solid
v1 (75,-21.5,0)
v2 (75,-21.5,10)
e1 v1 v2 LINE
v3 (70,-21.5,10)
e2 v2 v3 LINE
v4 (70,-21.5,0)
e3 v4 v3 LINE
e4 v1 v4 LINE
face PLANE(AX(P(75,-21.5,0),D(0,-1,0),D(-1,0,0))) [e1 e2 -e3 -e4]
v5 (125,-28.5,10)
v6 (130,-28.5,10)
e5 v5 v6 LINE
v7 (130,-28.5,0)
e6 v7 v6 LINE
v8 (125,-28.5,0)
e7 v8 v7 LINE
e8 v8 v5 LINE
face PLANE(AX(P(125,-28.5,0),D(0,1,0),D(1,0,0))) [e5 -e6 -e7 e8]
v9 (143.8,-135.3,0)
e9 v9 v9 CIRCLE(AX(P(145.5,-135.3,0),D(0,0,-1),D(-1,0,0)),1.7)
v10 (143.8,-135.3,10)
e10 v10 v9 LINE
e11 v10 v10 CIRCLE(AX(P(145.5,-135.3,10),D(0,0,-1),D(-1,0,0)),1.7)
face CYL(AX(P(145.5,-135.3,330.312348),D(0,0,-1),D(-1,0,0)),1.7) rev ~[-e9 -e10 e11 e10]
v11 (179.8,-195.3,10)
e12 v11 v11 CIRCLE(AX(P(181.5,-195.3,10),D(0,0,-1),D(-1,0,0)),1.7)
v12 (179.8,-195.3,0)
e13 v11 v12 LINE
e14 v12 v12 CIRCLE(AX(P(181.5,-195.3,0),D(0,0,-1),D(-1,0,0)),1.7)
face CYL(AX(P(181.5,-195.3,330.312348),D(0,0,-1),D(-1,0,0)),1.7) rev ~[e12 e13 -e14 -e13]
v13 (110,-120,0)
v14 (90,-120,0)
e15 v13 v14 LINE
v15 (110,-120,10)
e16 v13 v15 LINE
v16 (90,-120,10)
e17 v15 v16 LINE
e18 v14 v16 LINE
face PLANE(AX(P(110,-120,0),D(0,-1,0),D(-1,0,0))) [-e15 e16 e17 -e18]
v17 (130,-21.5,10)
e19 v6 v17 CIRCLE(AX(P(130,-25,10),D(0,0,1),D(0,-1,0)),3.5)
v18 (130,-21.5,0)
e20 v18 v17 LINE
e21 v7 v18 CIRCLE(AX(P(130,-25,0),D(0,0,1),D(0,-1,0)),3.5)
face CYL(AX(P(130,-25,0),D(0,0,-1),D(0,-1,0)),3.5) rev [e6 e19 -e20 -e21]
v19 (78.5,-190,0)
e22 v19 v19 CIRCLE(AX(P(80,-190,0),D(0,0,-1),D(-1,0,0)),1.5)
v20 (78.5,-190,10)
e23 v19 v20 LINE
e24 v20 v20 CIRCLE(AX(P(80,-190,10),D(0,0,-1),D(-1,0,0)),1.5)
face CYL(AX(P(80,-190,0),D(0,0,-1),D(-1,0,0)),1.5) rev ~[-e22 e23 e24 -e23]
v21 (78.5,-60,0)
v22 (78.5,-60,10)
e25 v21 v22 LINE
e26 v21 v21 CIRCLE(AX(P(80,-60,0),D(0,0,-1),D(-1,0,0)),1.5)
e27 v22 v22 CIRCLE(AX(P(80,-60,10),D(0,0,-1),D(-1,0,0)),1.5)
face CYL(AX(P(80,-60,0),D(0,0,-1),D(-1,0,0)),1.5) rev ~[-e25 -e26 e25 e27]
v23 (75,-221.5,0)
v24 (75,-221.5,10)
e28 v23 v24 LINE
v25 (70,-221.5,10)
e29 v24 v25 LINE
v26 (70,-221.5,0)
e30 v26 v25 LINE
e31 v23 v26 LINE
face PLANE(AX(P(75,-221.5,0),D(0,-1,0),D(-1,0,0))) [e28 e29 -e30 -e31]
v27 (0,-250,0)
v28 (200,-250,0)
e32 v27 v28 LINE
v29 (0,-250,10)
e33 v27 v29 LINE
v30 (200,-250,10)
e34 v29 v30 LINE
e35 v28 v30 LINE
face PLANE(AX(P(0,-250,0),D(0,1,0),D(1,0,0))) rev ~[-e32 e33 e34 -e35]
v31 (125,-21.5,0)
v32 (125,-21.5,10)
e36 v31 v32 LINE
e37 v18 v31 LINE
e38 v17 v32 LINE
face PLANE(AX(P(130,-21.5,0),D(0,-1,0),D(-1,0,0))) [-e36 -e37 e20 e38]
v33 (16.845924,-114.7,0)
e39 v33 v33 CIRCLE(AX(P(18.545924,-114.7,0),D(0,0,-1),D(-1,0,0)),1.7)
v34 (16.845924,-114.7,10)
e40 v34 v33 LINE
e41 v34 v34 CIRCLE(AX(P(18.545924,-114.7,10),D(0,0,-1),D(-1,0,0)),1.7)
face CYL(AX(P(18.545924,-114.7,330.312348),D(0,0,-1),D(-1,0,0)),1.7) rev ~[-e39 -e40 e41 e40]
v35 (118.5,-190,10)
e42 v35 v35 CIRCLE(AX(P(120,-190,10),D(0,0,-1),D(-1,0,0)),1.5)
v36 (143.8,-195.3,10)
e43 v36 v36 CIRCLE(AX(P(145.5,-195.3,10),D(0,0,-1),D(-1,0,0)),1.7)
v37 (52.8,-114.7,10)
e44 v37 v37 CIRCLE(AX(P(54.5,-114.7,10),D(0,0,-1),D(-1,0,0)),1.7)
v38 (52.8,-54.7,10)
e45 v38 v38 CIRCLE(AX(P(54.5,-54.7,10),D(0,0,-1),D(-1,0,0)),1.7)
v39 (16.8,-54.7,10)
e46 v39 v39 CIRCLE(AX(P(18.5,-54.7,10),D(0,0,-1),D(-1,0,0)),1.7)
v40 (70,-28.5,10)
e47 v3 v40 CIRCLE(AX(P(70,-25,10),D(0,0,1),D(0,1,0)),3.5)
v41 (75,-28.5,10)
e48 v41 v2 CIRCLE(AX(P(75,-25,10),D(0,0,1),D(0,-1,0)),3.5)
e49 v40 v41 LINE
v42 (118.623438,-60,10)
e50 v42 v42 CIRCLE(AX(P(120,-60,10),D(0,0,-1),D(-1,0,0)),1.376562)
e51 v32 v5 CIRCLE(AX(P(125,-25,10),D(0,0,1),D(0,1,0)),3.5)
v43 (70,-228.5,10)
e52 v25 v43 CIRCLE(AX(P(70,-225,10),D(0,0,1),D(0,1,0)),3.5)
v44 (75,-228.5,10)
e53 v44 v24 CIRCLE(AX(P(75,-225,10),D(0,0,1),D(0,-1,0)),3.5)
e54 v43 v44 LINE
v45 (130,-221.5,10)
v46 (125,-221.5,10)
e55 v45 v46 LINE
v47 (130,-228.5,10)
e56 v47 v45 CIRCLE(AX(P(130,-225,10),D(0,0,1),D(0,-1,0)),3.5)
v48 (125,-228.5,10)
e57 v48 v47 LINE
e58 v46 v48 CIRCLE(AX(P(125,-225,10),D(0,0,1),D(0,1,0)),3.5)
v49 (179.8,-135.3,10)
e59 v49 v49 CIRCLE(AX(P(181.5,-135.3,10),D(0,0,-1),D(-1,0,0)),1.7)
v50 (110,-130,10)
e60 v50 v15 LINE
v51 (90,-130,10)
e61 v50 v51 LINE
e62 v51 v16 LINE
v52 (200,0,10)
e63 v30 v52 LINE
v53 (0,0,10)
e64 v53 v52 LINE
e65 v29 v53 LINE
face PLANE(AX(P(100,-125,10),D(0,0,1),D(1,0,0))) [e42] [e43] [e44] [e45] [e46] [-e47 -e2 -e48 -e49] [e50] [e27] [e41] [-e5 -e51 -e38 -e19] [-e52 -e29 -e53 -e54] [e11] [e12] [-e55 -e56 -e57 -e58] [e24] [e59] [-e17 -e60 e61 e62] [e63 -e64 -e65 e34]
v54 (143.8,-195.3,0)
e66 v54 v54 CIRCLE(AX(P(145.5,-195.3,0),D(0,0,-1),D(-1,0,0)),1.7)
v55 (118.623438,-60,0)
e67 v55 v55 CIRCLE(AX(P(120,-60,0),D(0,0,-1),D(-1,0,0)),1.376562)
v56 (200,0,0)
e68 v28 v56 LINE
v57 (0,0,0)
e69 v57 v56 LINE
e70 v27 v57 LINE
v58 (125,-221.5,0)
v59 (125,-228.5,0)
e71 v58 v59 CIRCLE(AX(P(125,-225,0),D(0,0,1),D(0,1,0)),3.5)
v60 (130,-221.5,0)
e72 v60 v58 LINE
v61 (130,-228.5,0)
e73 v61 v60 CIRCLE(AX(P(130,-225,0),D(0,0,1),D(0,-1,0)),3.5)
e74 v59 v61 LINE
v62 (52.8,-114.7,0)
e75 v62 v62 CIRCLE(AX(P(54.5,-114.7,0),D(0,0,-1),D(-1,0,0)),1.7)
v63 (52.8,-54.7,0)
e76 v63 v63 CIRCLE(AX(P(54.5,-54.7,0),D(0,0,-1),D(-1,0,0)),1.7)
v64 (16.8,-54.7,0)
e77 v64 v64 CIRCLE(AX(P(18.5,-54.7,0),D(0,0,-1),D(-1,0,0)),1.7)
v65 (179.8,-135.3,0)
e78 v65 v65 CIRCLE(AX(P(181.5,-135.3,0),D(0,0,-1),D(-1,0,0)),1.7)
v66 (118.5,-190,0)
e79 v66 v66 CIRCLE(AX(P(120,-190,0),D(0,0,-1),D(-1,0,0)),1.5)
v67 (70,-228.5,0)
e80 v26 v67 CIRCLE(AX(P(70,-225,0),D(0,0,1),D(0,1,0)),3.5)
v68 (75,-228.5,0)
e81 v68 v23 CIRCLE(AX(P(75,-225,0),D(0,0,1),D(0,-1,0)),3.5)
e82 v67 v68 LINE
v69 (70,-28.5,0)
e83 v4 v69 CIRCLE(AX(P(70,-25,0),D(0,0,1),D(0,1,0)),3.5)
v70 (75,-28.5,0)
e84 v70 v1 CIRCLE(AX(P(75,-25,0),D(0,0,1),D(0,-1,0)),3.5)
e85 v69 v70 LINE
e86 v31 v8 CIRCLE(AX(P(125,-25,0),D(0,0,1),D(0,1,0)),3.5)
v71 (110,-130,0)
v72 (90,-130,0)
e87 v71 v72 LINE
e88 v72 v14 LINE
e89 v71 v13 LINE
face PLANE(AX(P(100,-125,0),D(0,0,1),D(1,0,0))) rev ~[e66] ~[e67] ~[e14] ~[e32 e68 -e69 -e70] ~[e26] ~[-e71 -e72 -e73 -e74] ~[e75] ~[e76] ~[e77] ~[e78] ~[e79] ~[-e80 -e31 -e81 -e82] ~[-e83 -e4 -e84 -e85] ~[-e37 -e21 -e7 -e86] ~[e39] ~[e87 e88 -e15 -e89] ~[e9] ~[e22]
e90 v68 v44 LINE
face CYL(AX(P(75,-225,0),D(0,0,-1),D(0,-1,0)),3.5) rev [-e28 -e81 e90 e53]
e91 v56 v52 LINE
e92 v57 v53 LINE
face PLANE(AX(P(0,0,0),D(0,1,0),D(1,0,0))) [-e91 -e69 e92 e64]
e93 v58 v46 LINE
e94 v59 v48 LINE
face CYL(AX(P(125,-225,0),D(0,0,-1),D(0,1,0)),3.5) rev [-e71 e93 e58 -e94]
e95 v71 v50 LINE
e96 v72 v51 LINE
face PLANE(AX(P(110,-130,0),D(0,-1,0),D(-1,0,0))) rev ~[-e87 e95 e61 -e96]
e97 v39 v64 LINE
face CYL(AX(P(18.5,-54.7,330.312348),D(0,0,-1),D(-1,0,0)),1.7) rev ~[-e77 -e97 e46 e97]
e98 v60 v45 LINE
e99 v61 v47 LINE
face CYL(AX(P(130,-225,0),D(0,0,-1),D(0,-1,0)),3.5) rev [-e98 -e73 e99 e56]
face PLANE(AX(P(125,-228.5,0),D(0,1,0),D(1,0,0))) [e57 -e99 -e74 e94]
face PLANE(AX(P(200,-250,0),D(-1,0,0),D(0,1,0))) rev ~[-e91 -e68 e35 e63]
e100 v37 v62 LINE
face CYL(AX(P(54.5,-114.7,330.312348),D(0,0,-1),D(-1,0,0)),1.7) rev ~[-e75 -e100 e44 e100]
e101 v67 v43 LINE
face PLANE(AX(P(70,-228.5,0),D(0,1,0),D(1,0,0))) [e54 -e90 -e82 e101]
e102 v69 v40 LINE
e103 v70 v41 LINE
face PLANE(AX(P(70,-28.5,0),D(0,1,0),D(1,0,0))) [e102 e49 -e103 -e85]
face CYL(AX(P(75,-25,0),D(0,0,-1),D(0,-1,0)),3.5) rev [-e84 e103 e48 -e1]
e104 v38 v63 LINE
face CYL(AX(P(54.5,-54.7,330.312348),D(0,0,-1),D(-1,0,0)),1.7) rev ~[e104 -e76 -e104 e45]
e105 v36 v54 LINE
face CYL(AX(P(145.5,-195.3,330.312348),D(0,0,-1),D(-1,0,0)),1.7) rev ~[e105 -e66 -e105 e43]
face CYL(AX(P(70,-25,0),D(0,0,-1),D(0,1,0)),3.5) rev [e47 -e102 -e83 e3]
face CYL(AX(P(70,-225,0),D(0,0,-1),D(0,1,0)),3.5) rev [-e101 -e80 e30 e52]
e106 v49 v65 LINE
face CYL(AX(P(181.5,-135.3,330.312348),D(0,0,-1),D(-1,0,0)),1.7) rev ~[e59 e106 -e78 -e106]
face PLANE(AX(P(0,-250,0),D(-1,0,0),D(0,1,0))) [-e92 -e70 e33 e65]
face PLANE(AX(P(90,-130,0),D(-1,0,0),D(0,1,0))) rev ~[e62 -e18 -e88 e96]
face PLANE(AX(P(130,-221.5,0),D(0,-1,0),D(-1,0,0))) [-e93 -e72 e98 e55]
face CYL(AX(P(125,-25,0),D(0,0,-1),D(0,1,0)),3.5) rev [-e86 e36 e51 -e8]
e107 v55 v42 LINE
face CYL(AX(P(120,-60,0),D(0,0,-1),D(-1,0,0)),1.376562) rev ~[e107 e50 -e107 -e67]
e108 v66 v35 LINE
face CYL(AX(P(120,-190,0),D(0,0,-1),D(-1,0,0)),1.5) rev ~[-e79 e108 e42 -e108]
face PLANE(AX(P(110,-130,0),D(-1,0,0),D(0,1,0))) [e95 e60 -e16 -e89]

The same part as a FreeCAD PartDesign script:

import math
import FreeCAD as App
import Part
import Sketcher

V = App.Vector

doc = App.newDocument("Part")
params = doc.addObject("Spreadsheet::Sheet", "Params")
for row, (alias, value) in enumerate([
    ("sketch1_width", "200 mm"),
    ("sketch1_height", "250 mm"),
    ("pad1_length", "10 mm"),
    ("sketch2_width", "20 mm"),
    ("sketch2_height", "10 mm"),
    ("pocket1_length", "10 mm"),
    ("sketch3_radius", "3.5 mm"),
    ("sketch3_width", "5 mm"),
    ("pocket2_length", "10 mm"),
    ("sketch4_diameter", "3 mm"),
    ("pocket3_length", "10 mm"),
    ("sketch5_diameter", "3.4 mm"),
    ("hole_diameter", "3.4 mm"),
], start=1):
    params.set(f"A{row}", alias)
    params.set(f"B{row}", "=" + value)
    params.setAlias(f"B{row}", alias)

body = doc.addObject("PartDesign::Body", "Body")

sketch1 = body.newObject("Sketcher::SketchObject", "Sketch")
sketch1.AttachmentSupport = (doc.getObject("XY_Plane"), [""])
sketch1.MapMode = "FlatFace"
sketch1.addGeometry([
    Part.LineSegment(V(0, 0, 0), V(0, -250, 0)),
    Part.LineSegment(V(0, -250, 0), V(200, -250, 0)),
    Part.LineSegment(V(200, -250, 0), V(200, 0, 0)),
    Part.LineSegment(V(200, 0, 0), V(0, 0, 0)),
], False)
sketch1.addConstraint([
    Sketcher.Constraint("Coincident", 0, 2, 1, 1),
    Sketcher.Constraint("Coincident", 1, 2, 2, 1),
    Sketcher.Constraint("Coincident", 2, 2, 3, 1),
    Sketcher.Constraint("Coincident", 3, 2, 0, 1),
    Sketcher.Constraint("Vertical", 0),
    Sketcher.Constraint("Horizontal", 1),
    Sketcher.Constraint("Vertical", 2),
    Sketcher.Constraint("Horizontal", 3),
    Sketcher.Constraint("Coincident", 3, 2, -1, 1),
    Sketcher.Constraint("DistanceX", 1, 1, 1, 2, 200.0),
    Sketcher.Constraint("DistanceY", 0, 2, 0, 1, 250.0),
])
sketch1.setExpression("Constraints[9]", "Params.sketch1_width")
sketch1.setExpression("Constraints[10]", "Params.sketch1_height")
pad1 = body.newObject("PartDesign::Pad", "Pad")
pad1.Profile = sketch1
pad1.setExpression("Length", "Params.pad1_length")

sketch2 = body.newObject("Sketcher::SketchObject", "Sketch001")
sketch2.AttachmentSupport = (doc.getObject("XY_Plane"), [""])
sketch2.MapMode = "FlatFace"
sketch2.addGeometry([
    Part.LineSegment(V(110, -120, 0), V(110, -130, 0)),
    Part.LineSegment(V(110, -130, 0), V(90, -130, 0)),
    Part.LineSegment(V(90, -130, 0), V(90, -120, 0)),
    Part.LineSegment(V(90, -120, 0), V(110, -120, 0)),
], False)
sketch2.addConstraint([
    Sketcher.Constraint("Coincident", 0, 2, 1, 1),
    Sketcher.Constraint("Coincident", 1, 2, 2, 1),
    Sketcher.Constraint("Coincident", 2, 2, 3, 1),
    Sketcher.Constraint("Coincident", 3, 2, 0, 1),
    Sketcher.Constraint("Vertical", 0),
    Sketcher.Constraint("Horizontal", 1),
    Sketcher.Constraint("Vertical", 2),
    Sketcher.Constraint("Horizontal", 3),
    Sketcher.Constraint("DistanceX", 1, 2, 1, 1, 20.0),
    Sketcher.Constraint("DistanceY", 0, 2, 0, 1, 10.0),
    Sketcher.Constraint("DistanceX", -1, 1, 0, 2, 110.0),
    Sketcher.Constraint("DistanceY", 0, 2, -1, 1, 130.0),
])
sketch2.setExpression("Constraints[8]", "Params.sketch2_width")
sketch2.setExpression("Constraints[9]", "Params.sketch2_height")
pocket1 = body.newObject("PartDesign::Pocket", "Pocket")
pocket1.Profile = sketch2
pocket1.setExpression("Length", "Params.pocket1_length")
pocket1.Reversed = True

sketch3 = body.newObject("Sketcher::SketchObject", "Sketch002")
sketch3.AttachmentSupport = (doc.getObject("XY_Plane"), [""])
sketch3.MapMode = "FlatFace"
sketch3.addGeometry([
    Part.LineSegment(V(75, -28.5, 0), V(70, -28.5, 0)),
    Part.ArcOfCircle(Part.Circle(V(70, -25, 0), V(0, 0, 1), 3.5), math.radians(90), math.radians(270)),
    Part.LineSegment(V(70, -21.5, 0), V(75, -21.5, 0)),
    Part.ArcOfCircle(Part.Circle(V(75, -25, 0), V(0, 0, 1), 3.5), math.radians(-90), math.radians(90)),
    Part.LineSegment(V(75, -228.5, 0), V(70, -228.5, 0)),
    Part.ArcOfCircle(Part.Circle(V(70, -225, 0), V(0, 0, 1), 3.5), math.radians(90), math.radians(270)),
    Part.LineSegment(V(70, -221.5, 0), V(75, -221.5, 0)),
    Part.ArcOfCircle(Part.Circle(V(75, -225, 0), V(0, 0, 1), 3.5), math.radians(-90), math.radians(90)),
    Part.LineSegment(V(125, -221.5, 0), V(130, -221.5, 0)),
    Part.ArcOfCircle(Part.Circle(V(130, -225, 0), V(0, 0, 1), 3.5), math.radians(-90), math.radians(90)),
    Part.LineSegment(V(130, -228.5, 0), V(125, -228.5, 0)),
    Part.ArcOfCircle(Part.Circle(V(125, -225, 0), V(0, 0, 1), 3.5), math.radians(90), math.radians(270)),
    Part.LineSegment(V(125, -21.5, 0), V(130, -21.5, 0)),
    Part.ArcOfCircle(Part.Circle(V(130, -25, 0), V(0, 0, 1), 3.5), math.radians(-90), math.radians(90)),
    Part.LineSegment(V(130, -28.5, 0), V(125, -28.5, 0)),
    Part.ArcOfCircle(Part.Circle(V(125, -25, 0), V(0, 0, 1), 3.5), math.radians(90), math.radians(270)),
], False)
sketch3.addConstraint([
    Sketcher.Constraint("Tangent", 0, 2, 1, 2),
    Sketcher.Constraint("Tangent", 1, 1, 2, 1),
    Sketcher.Constraint("Tangent", 2, 2, 3, 2),
    Sketcher.Constraint("Tangent", 3, 1, 0, 1),
    Sketcher.Constraint("Tangent", 4, 2, 5, 2),
    Sketcher.Constraint("Tangent", 5, 1, 6, 1),
    Sketcher.Constraint("Tangent", 6, 2, 7, 2),
    Sketcher.Constraint("Tangent", 7, 1, 4, 1),
    Sketcher.Constraint("Tangent", 8, 2, 9, 2),
    Sketcher.Constraint("Tangent", 9, 1, 10, 1),
    Sketcher.Constraint("Tangent", 10, 2, 11, 2),
    Sketcher.Constraint("Tangent", 11, 1, 8, 1),
    Sketcher.Constraint("Tangent", 12, 2, 13, 2),
    Sketcher.Constraint("Tangent", 13, 1, 14, 1),
    Sketcher.Constraint("Tangent", 14, 2, 15, 2),
    Sketcher.Constraint("Tangent", 15, 1, 12, 1),
    Sketcher.Constraint("Horizontal", 0),
    Sketcher.Constraint("Horizontal", 2),
    Sketcher.Constraint("Horizontal", 4),
    Sketcher.Constraint("Horizontal", 6),
    Sketcher.Constraint("Horizontal", 8),
    Sketcher.Constraint("Horizontal", 10),
    Sketcher.Constraint("Horizontal", 12),
    Sketcher.Constraint("Horizontal", 14),
    Sketcher.Constraint("Equal", 3, 5),
    Sketcher.Constraint("Equal", 7, 9),
    Sketcher.Constraint("Equal", 11, 13),
    Sketcher.Constraint("Horizontal", 7, 3, 9, 3),
    Sketcher.Constraint("Horizontal", 3, 3, 13, 3),
    Sketcher.Constraint("Vertical", 1, 3, 5, 3),
    Sketcher.Constraint("Vertical", 3, 3, 7, 3),
    Sketcher.Constraint("Vertical", 9, 3, 13, 3),
    Sketcher.Constraint("Vertical", 11, 3, 15, 3),
    Sketcher.Constraint("Equal", 6, 8),
    Sketcher.Constraint("Radius", 1, 3.5),
    Sketcher.Constraint("DistanceX", 0, 2, 0, 1, 5.0),
    Sketcher.Constraint("DistanceX", -1, 1, 1, 3, 70.0),
    Sketcher.Constraint("DistanceY", 1, 3, -1, 1, 25.0),
    Sketcher.Constraint("DistanceY", 5, 3, -1, 1, 225.0),
    Sketcher.Constraint("DistanceX", -1, 1, 9, 3, 130.0),
])
sketch3.setExpression("Constraints[34]", "Params.sketch3_radius")
sketch3.setExpression("Constraints[35]", "Params.sketch3_width")
pocket2 = body.newObject("PartDesign::Pocket", "Pocket001")
pocket2.Profile = sketch3
pocket2.setExpression("Length", "Params.pocket2_length")
pocket2.Reversed = True

sketch4 = body.newObject("Sketcher::SketchObject", "Sketch003")
sketch4.AttachmentSupport = (doc.getObject("XY_Plane"), [""])
sketch4.MapMode = "FlatFace"
sketch4.addGeometry([
    Part.Circle(V(80, -190, 0), V(0, 0, 1), 1.5),
    Part.Circle(V(120, -190, 0), V(0, 0, 1), 1.5),
    Part.Circle(V(80, -60, 0), V(0, 0, 1), 1.5),
    Part.Circle(V(120, -60, 0), V(0, 0, 1), 1.4),
], False)
sketch4.addConstraint([
    Sketcher.Constraint("Equal", 0, 1),
    Sketcher.Constraint("Equal", 1, 2),
    Sketcher.Constraint("Horizontal", 0, 3, 1, 3),
    Sketcher.Constraint("Horizontal", 2, 3, 3, 3),
    Sketcher.Constraint("Vertical", 0, 3, 2, 3),
    Sketcher.Constraint("Vertical", 1, 3, 3, 3),
    Sketcher.Constraint("Diameter", 0, 3.0),
    Sketcher.Constraint("DistanceX", -1, 1, 0, 3, 80.0),
    Sketcher.Constraint("DistanceY", 0, 3, -1, 1, 190.0),
    Sketcher.Constraint("DistanceX", -1, 1, 1, 3, 120.0),
    Sketcher.Constraint("DistanceY", 2, 3, -1, 1, 60.0),
    Sketcher.Constraint("Diameter", 3, 2.753124),
])
sketch4.setExpression("Constraints[6]", "Params.sketch4_diameter")
pocket3 = body.newObject("PartDesign::Pocket", "Pocket002")
pocket3.Profile = sketch4
pocket3.setExpression("Length", "Params.pocket3_length")
pocket3.Reversed = True

sketch5 = body.newObject("Sketcher::SketchObject", "Sketch004")
sketch5.AttachmentSupport = (doc.getObject("XY_Plane"), [""])
sketch5.MapMode = "FlatFace"
sketch5.AttachmentOffset = App.Placement(V(0, 0, 10), App.Rotation())
sketch5.addGeometry([
    Part.Circle(V(18.5, -54.7, 0), V(0, 0, 1), 1.7),
    Part.Circle(V(54.5, -54.7, 0), V(0, 0, 1), 1.7),
    Part.Circle(V(18.5, -114.7, 0), V(0, 0, 1), 1.7),
    Part.Circle(V(54.5, -114.7, 0), V(0, 0, 1), 1.7),
    Part.Circle(V(145.5, -135.3, 0), V(0, 0, 1), 1.7),
    Part.Circle(V(181.5, -135.3, 0), V(0, 0, 1), 1.7),
    Part.Circle(V(145.5, -195.3, 0), V(0, 0, 1), 1.7),
    Part.Circle(V(181.5, -195.3, 0), V(0, 0, 1), 1.7),
], False)
sketch5.addConstraint([
    Sketcher.Constraint("Equal", 0, 1),
    Sketcher.Constraint("Equal", 1, 2),
    Sketcher.Constraint("Equal", 2, 3),
    Sketcher.Constraint("Equal", 3, 4),
    Sketcher.Constraint("Equal", 4, 5),
    Sketcher.Constraint("Equal", 5, 6),
    Sketcher.Constraint("Equal", 6, 7),
    Sketcher.Constraint("Horizontal", 0, 3, 1, 3),
    Sketcher.Constraint("Horizontal", 2, 3, 3, 3),
    Sketcher.Constraint("Horizontal", 4, 3, 5, 3),
    Sketcher.Constraint("Horizontal", 6, 3, 7, 3),
    Sketcher.Constraint("Vertical", 1, 3, 3, 3),
    Sketcher.Constraint("Vertical", 4, 3, 6, 3),
    Sketcher.Constraint("Vertical", 5, 3, 7, 3),
    Sketcher.Constraint("Diameter", 0, 3.4),
    Sketcher.Constraint("DistanceX", 0, 3, 1, 3, 36.0),
    Sketcher.Constraint("DistanceY", 2, 3, 0, 3, 60.0),
    Sketcher.Constraint("DistanceX", 3, 3, 4, 3, 91.0),
    Sketcher.Constraint("DistanceX", 4, 3, 5, 3, 36.0),
    Sketcher.Constraint("DistanceY", 6, 3, 4, 3, 60.0),
    Sketcher.Constraint("DistanceX", -1, 1, 0, 3, 18.5),
    Sketcher.Constraint("DistanceY", 0, 3, -1, 1, 54.7),
    Sketcher.Constraint("DistanceY", 4, 3, -1, 1, 135.3),
    Sketcher.Constraint("DistanceX", -1, 1, 2, 3, 18.545924),
])
sketch5.setExpression("Constraints[14]", "Params.sketch5_diameter")
doc.recompute()
hole = body.newObject("PartDesign::Hole", "Hole")
hole.Profile = sketch5
hole.ThreadType = "None"
hole.setExpression("Diameter", "Params.hole_diameter")
hole.DepthType = "ThroughAll"

doc.recompute()
